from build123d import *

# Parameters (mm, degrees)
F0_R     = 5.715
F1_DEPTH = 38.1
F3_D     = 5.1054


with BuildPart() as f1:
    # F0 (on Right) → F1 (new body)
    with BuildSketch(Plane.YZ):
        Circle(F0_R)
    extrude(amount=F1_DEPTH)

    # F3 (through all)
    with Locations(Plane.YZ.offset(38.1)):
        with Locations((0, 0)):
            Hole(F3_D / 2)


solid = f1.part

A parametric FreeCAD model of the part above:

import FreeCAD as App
import Part
import Sketcher
from FreeCAD import Vector
Q = App.Units.Quantity

doc = App.newDocument("Part")
body = doc.addObject("PartDesign::Body", "Body")

sketch1 = doc.addObject("Sketcher::SketchObject", "Sketch")
body.addObject(sketch1)
sketch1.AttachmentSupport = (doc.YZ_Plane, [""])
sketch1.MapMode = "FlatFace"
sketch1.addGeometry(Part.Circle(Vector(0, 0, 0), Vector(0, 0, 1), 6), False)
sketch1.addConstraint([
    Sketcher.Constraint("Coincident", 0, 3, -1, 1),
    Sketcher.Constraint("Diameter", 0, Q("0.45 in")),
])
pad1 = doc.addObject("PartDesign::Pad", "Pad")
body.addObject(pad1)
pad1.Profile = sketch1
pad1.Length = Q("1.5 in")

sketch2 = doc.addObject("Sketcher::SketchObject", "Sketch001")
body.addObject(sketch2)
sketch2.AttachmentSupport = (doc.YZ_Plane, [""])
sketch2.MapMode = "FlatFace"
sketch2.AttachmentOffset = App.Placement(Vector(0, 0, 1.5 * 25.4), App.Rotation())
sketch2.addGeometry(Part.Circle(Vector(0, 0, 0), Vector(0, 0, 1), 2.6), False)
sketch2.addConstraint([
    Sketcher.Constraint("Coincident", 0, 3, -1, 1),
    Sketcher.Constraint("Diameter", 0, Q("0.201 in")),
])
doc.recompute()
hole = doc.addObject("PartDesign::Hole", "Hole")
body.addObject(hole)
hole.Profile = sketch2
hole.ThreadType = "None"
hole.Diameter = Q("0.201 in")
hole.DepthType = "ThroughAll"

doc.recompute()
